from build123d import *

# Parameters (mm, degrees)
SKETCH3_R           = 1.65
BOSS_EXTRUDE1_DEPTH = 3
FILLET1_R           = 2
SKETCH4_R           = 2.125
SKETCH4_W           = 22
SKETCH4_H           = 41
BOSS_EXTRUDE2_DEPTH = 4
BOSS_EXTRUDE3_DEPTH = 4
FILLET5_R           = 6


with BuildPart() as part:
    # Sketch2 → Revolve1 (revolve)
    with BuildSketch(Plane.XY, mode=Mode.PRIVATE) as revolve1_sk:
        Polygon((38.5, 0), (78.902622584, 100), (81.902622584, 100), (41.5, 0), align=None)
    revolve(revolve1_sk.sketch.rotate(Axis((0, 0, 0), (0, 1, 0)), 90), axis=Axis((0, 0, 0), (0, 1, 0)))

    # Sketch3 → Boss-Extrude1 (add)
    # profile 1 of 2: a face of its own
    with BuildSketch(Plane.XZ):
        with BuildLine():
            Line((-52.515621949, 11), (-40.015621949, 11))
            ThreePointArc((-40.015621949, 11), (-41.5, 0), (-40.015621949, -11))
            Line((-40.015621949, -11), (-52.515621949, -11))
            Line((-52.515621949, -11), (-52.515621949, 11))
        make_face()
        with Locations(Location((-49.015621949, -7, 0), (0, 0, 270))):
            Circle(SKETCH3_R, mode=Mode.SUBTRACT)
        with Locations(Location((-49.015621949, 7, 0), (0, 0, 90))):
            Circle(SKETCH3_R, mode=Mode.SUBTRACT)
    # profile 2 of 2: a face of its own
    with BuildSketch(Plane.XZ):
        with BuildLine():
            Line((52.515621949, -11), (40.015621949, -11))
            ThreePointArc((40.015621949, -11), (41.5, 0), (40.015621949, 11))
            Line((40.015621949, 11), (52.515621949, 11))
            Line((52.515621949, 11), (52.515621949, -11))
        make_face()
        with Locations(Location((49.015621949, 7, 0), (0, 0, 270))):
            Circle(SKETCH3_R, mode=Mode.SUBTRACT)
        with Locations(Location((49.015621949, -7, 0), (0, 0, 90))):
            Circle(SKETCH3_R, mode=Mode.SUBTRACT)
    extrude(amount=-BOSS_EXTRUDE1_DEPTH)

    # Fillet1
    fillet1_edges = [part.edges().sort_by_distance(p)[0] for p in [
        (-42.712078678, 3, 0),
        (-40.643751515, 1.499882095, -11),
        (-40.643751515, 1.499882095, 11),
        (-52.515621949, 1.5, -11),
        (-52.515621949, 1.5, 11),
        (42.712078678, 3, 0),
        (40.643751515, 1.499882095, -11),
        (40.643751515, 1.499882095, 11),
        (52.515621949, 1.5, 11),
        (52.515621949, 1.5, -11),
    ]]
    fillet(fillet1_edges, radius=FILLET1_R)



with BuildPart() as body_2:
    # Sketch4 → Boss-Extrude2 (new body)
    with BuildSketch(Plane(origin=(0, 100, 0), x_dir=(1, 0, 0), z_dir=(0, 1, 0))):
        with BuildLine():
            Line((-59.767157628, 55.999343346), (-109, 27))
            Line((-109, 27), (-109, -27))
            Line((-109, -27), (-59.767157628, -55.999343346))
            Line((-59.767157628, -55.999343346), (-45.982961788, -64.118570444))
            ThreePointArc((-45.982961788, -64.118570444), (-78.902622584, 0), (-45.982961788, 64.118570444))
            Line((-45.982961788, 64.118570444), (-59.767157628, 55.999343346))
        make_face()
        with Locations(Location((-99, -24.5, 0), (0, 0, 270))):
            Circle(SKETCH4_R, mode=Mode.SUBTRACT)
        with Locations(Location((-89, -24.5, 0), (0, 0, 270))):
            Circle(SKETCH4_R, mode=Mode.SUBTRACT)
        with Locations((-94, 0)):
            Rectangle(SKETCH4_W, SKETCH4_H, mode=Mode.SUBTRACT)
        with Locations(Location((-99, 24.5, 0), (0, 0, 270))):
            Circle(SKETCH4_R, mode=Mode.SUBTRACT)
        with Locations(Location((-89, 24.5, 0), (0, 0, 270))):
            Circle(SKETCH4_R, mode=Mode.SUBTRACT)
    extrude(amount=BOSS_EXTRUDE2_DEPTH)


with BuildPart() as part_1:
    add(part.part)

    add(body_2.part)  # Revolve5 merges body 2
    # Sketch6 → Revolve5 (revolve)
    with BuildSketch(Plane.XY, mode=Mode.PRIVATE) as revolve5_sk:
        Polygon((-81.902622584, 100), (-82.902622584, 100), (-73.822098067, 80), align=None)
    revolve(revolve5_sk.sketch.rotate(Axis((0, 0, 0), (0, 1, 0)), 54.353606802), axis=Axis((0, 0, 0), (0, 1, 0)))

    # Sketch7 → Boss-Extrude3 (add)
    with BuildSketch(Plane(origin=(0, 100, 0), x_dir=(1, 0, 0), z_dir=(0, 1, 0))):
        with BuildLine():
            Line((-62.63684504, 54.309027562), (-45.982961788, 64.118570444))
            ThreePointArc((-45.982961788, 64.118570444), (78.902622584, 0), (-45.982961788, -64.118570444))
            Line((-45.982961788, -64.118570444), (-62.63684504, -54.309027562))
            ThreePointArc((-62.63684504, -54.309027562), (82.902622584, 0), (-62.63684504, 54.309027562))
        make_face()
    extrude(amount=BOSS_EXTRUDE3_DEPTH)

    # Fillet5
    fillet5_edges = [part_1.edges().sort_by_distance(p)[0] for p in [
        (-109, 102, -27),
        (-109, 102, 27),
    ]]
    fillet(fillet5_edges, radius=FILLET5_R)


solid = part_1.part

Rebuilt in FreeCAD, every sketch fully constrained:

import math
import FreeCAD as App
import Part
import Sketcher
Q = App.Units.Quantity


def edges_at(feature, points):
    """Names of the edges that pass closest to the given points."""
    edges = feature.Shape.Edges
    near = lambda p: min(range(len(edges)), key=lambda i: edges[i].distToShape(Part.Vertex(*p))[0])
    return sorted({f"Edge{near(p) + 1}" for p in points})


def add_polygon(sketch, points):
    """Adds a closed chain of lines whose ends are joined by coincident constraints."""
    first, n = sketch.GeometryCount, len(points)
    for a, b in zip(points, points[1:] + points[:1]):
        sketch.addGeometry(Part.LineSegment(App.Vector(*a, 0), App.Vector(*b, 0)), False)
    for i in range(n):
        sketch.addConstraint(Sketcher.Constraint("Coincident", first + i, 2, first + (i + 1) % n, 1))

doc = App.newDocument("Part")
body = doc.addObject("PartDesign::Body", "Body")

# Sketch on XY plane
sketch1 = body.newObject("Sketcher::SketchObject", "Sketch")
sketch1.AttachmentSupport = (doc.getObject("XY_Plane"), [""])
sketch1.MapMode = "FlatFace"
add_polygon(sketch1, [(78.9, 100), (38.5, 0), (41.5, 0), (81.9, 100)])  # lines 0-3
sketch1.addConstraint([
    Sketcher.Constraint("Horizontal", 1),
    Sketcher.Constraint("Horizontal", 3),
    Sketcher.Constraint("PointOnObject", 0, 2, -1),
    Sketcher.Constraint("Parallel", 0, 2),
    Sketcher.Constraint("DistanceX", 1, 1, 1, 2, 3.0),
    Sketcher.Constraint("Angle", 0, Q("-112 deg")),
    Sketcher.Constraint("DistanceY", -1, 1, 2, 2, 100.0),
    Sketcher.Constraint("DistanceX", -1, 1, 0, 2, 38.5),
])
revolution = body.newObject("PartDesign::Revolution", "Revolution")
revolution.Profile = sketch1
revolution.ReferenceAxis = (sketch1, ["V_Axis"])
revolution.Angle = 360

# Sketch on XZ plane
sketch2 = body.newObject("Sketcher::SketchObject", "Sketch001")
sketch2.AttachmentSupport = (doc.getObject("XZ_Plane"), [""])
sketch2.MapMode = "FlatFace"
sketch2.addGeometry([
    Part.LineSegment(App.Vector(-40, 11, 0), App.Vector(-52.5, 11, 0)),  # 0
    Part.LineSegment(App.Vector(-52.5, 11, 0), App.Vector(-52.5, -11, 0)),  # 1
    Part.LineSegment(App.Vector(-52.5, -11, 0), App.Vector(-40, -11, 0)),  # 2
    Part.ArcOfCircle(Part.Circle(App.Vector(0, 0, 0), App.Vector(0, 0, 1), 41.5), math.radians(165), math.radians(195)),  # 3
    Part.Circle(App.Vector(-49, -7, 0), App.Vector(0, 0, 1), 1.6),  # 4
    Part.Circle(App.Vector(-49, 7, 0), App.Vector(0, 0, 1), 1.6),  # 5
    Part.LineSegment(App.Vector(40, -11, 0), App.Vector(52.5, -11, 0)),  # 6
    Part.LineSegment(App.Vector(52.5, -11, 0), App.Vector(52.5, 11, 0)),  # 7
    Part.LineSegment(App.Vector(52.5, 11, 0), App.Vector(40, 11, 0)),  # 8
    Part.ArcOfCircle(Part.Circle(App.Vector(0, 0, 0), App.Vector(0, 0, 1), 41.5), math.radians(-15), math.radians(15)),  # 9
    Part.Circle(App.Vector(49, -7, 0), App.Vector(0, 0, 1), 1.6),  # 10
    Part.Circle(App.Vector(49, 7, 0), App.Vector(0, 0, 1), 1.6),  # 11
], False)
sketch2.addConstraint([
    Sketcher.Constraint("Coincident", 0, 2, 1, 1),
    Sketcher.Constraint("Coincident", 1, 2, 2, 1),
    Sketcher.Constraint("Coincident", 2, 2, 3, 2),
    Sketcher.Constraint("Coincident", 3, 1, 0, 1),
    Sketcher.Constraint("Coincident", 6, 2, 7, 1),
    Sketcher.Constraint("Coincident", 7, 2, 8, 1),
    Sketcher.Constraint("Coincident", 8, 2, 9, 2),
    Sketcher.Constraint("Coincident", 9, 1, 6, 1),
    Sketcher.Constraint("Horizontal", 0),
    Sketcher.Constraint("Vertical", 1),
    Sketcher.Constraint("Horizontal", 2),
    Sketcher.Constraint("Horizontal", 6),
    Sketcher.Constraint("Vertical", 7),
    Sketcher.Constraint("Horizontal", 8),
    Sketcher.Constraint("Coincident", 3, 3, -1, 1),
    Sketcher.Constraint("Coincident", 9, 3, -1, 1),
    Sketcher.Constraint("Equal", 4, 5),
    Sketcher.Constraint("Equal", 3, 9),
    Sketcher.Constraint("Equal", 5, 10),
    Sketcher.Constraint("Equal", 10, 11),
    Sketcher.Constraint("Symmetric", 5, 3, 10, 3, -1, 1),
    Sketcher.Constraint("Symmetric", 4, 3, 11, 3, -1, 1),
    Sketcher.Constraint("Symmetric", 0, 2, 6, 2, -1, 1),
    Sketcher.Constraint("Symmetric", 4, 3, 10, 3, -2),
    Sketcher.Constraint("Horizontal", 2, 2, 6, 2),
    Sketcher.Constraint("Horizontal", 3, 1, 7, 2),
    Sketcher.Constraint("Diameter", 4, 3.3),
    Sketcher.Constraint("Radius", 3, 41.5),
    Sketcher.Constraint("DistanceY", 1, 2, 1, 1, 22.0),
    Sketcher.Constraint("DistanceX", 0, 2, 0, 1, 12.5),
    Sketcher.Constraint("DistanceY", 4, 3, -1, 1, 7.0),
    Sketcher.Constraint("DistanceX", 4, 3, 2, 2, 9.0),
])
pad1 = body.newObject("PartDesign::Pad", "Pad")
pad1.Profile = sketch2
pad1.Length = 3
pad1.Reversed = True
doc.recompute()

fillet = body.newObject("PartDesign::Fillet", "Fillet")
fillet.Base = (pad1, edges_at(pad1, [
    (-42.712, 3, 0),
    (-40.644, 1.5, -11),
    (-40.644, 1.5, 11),
    (-52.516, 1.5, -11),
    (-52.516, 1.5, 11),
    (42.712, 3, 0),
    (40.644, 1.5, -11),
    (40.644, 1.5, 11),
    (52.516, 1.5, 11),
    (52.516, 1.5, -11),
]))
fillet.Radius = 2
body2 = doc.addObject("PartDesign::Body", "Body001")

# Sketch on XZ plane
sketch3 = body2.newObject("Sketcher::SketchObject", "Sketch002")
sketch3.AttachmentSupport = (doc.getObject("XZ_Plane001"), [""])
sketch3.MapMode = "FlatFace"
sketch3.AttachmentOffset = App.Placement(App.Vector(0, 0, -100), App.Rotation())
sketch3.addGeometry(Part.LineSegment(App.Vector(-59.8, -56, 0), App.Vector(-109, -27, 0)), False)  # 0
sketch3.addGeometry(Part.LineSegment(App.Vector(-109, -27, 0), App.Vector(-109, 27, 0)), False)  # 1
sketch3.addGeometry(Part.LineSegment(App.Vector(-109, 27, 0), App.Vector(-59.8, 56, 0)), False)  # 2
sketch3.addGeometry(Part.LineSegment(App.Vector(-59.8, 56, 0), App.Vector(-46, 64.1, 0)), False)  # 3
sketch3.addGeometry(Part.ArcOfCircle(Part.Circle(App.Vector(0, 0, 0), App.Vector(0, 0, 1), 78.9), math.radians(126), math.radians(234)), False)  # 4
sketch3.addGeometry(Part.LineSegment(App.Vector(-46, -64.1, 0), App.Vector(-59.8, -56, 0)), False)  # 5
sketch3.addGeometry(Part.Circle(App.Vector(-99, 24.5, 0), App.Vector(0, 0, 1), 2.1), False)  # 6
sketch3.addGeometry(Part.Circle(App.Vector(-89, 24.5, 0), App.Vector(0, 0, 1), 2.1), False)  # 7
sketch3.addGeometry(Part.Circle(App.Vector(-99, -24.5, 0), App.Vector(0, 0, 1), 2.1), False)  # 8
add_polygon(sketch3, [(-83, 20.5), (-105, 20.5), (-105, -20.5), (-83, -20.5)])  # lines 9-12
sketch3.addGeometry(Part.Circle(App.Vector(-89, -24.5, 0), App.Vector(0, 0, 1), 2.1), False)  # 13
sketch3.addConstraint([
    Sketcher.Constraint("Coincident", 0, 2, 1, 1),
    Sketcher.Constraint("Coincident", 1, 2, 2, 1),
    Sketcher.Constraint("Coincident", 2, 2, 3, 1),
    Sketcher.Constraint("Coincident", 3, 2, 4, 1),
    Sketcher.Constraint("Coincident", 4, 2, 5, 1),
    Sketcher.Constraint("Coincident", 5, 2, 0, 1),
    Sketcher.Constraint("Vertical", 1),
    Sketcher.Constraint("Horizontal", 9),
    Sketcher.Constraint("Vertical", 10),
    Sketcher.Constraint("Horizontal", 11),
    Sketcher.Constraint("Vertical", 12),
    Sketcher.Constraint("Coincident", 4, 3, -1, 1),
    Sketcher.Constraint("Equal", 6, 7),
    Sketcher.Constraint("Equal", 7, 8),
    Sketcher.Constraint("Equal", 8, 13),
    Sketcher.Constraint("Symmetric", 6, 3, 8, 3, -1),
    Sketcher.Constraint("Symmetric", 7, 3, 13, 3, -1),
    Sketcher.Constraint("Symmetric", 2, 2, 5, 2, -1),
    Sketcher.Constraint("Parallel", 2, 3),
    Sketcher.Constraint("Parallel", 0, 5),
    Sketcher.Constraint("Horizontal", 6, 3, 7, 3),
    Sketcher.Constraint("Vertical", 3, 2, 4, 2),
    Sketcher.Constraint("Diameter", 6, 4.25),
    Sketcher.Constraint("DistanceX", 9, 2, 9, 1, 22.0),
    Sketcher.Constraint("DistanceY", 1, 1, 1, 2, 54.0),
    Sketcher.Constraint("DistanceY", 10, 2, 10, 1, 41.0),
    Sketcher.Constraint("DistanceX", 6, 3, -1, 1, 99.0),
    Sketcher.Constraint("DistanceX", 7, 3, -1, 1, 89.0),
    Sketcher.Constraint("DistanceX", 0, 2, -1, 1, 109.0),
    Sketcher.Constraint("DistanceX", 9, 2, -1, 1, 105.0),
    Sketcher.Constraint("DistanceY", 8, 3, 6, 3, 49.0),
    Sketcher.Constraint("DistanceY", 9, 2, 6, 3, 4.0),
    Sketcher.Constraint("Radius", 4, 78.902623),
    Sketcher.Constraint("Distance", 0, 57.138732),
    Sketcher.Constraint("DistanceX", 3, 2, -1, 1, 45.982962),
])
pad2 = body2.newObject("PartDesign::Pad", "Pad001")
pad2.Profile = sketch3
pad2.Length = 4
pad2.Reversed = True
doc.recompute()

boolean = body.newObject("PartDesign::Boolean", "Boolean")
boolean.Type = "Fuse"
boolean.addObjects([body2])

# Sketch on XY plane
sketch4 = body.newObject("Sketcher::SketchObject", "Sketch003")
sketch4.AttachmentSupport = (doc.getObject("XY_Plane"), [""])
sketch4.MapMode = "FlatFace"
add_polygon(sketch4, [(-81.9, 100), (-82.9, 100), (-73.8, 80)])  # lines 0-2
sketch4.addConstraint([
    Sketcher.Constraint("Horizontal", 0),
    Sketcher.Constraint("DistanceX", 0, 2, 0, 1, 1.0),
    Sketcher.Constraint("Angle", 2, Q("112 deg")),
    Sketcher.Constraint("DistanceY", -1, 1, 0, 2, 100.0),
    Sketcher.Constraint("DistanceY", -1, 1, 1, 2, 80.0),
    Sketcher.Constraint("DistanceX", 1, 2, -1, 1, 73.822098),
])
revolution2 = body.newObject("PartDesign::Revolution", "Revolution001")
revolution2.Profile = sketch4
revolution2.ReferenceAxis = (sketch4, ["V_Axis"])
revolution2.Angle = 360

# Sketch on XZ plane
sketch5 = body.newObject("Sketcher::SketchObject", "Sketch004")
sketch5.AttachmentSupport = (doc.getObject("XZ_Plane"), [""])
sketch5.MapMode = "FlatFace"
sketch5.AttachmentOffset = App.Placement(App.Vector(0, 0, -100), App.Rotation())
sketch5.addGeometry([
    Part.LineSegment(App.Vector(-63, -54, 0), App.Vector(-46, -64, 0)),
    Part.ArcOfCircle(Part.Circle(App.Vector(0, 0, 0), App.Vector(0, 0, 1), 79), math.radians(-126), math.radians(126)),
    Part.LineSegment(App.Vector(-46, 64, 0), App.Vector(-63, 54, 0)),
    Part.ArcOfCircle(Part.Circle(App.Vector(0, 0, 0), App.Vector(0, 0, 1), 83), math.radians(-139), math.radians(139)),
], False)
sketch5.addConstraint([
    Sketcher.Constraint("Coincident", 0, 2, 1, 1),
    Sketcher.Constraint("Coincident", 1, 2, 2, 1),
    Sketcher.Constraint("Coincident", 2, 2, 3, 2),
    Sketcher.Constraint("Coincident", 3, 1, 0, 1),
    Sketcher.Constraint("Coincident", 1, 3, -1, 1),
    Sketcher.Constraint("Coincident", 3, 3, -1, 1),
    Sketcher.Constraint("Vertical", 0, 2, 1, 2),
    Sketcher.Constraint("Vertical", 2, 2, 3, 1),
    Sketcher.Constraint("Radius", 1, 78.902623),
    Sketcher.Constraint("Radius", 3, 82.902623),
    Sketcher.Constraint("DistanceY", 0, 2, 2, 2, 118.427598),
    Sketcher.Constraint("Distance", 0, 19.328191),
])
pad3 = body.newObject("PartDesign::Pad", "Pad002")
pad3.Profile = sketch5
pad3.Length = 4
pad3.Reversed = True
doc.recompute()

fillet2 = body.newObject("PartDesign::Fillet", "Fillet001")
fillet2.Base = (pad3, edges_at(pad3, [(-109, 102, -27), (-109, 102, 27)]))
fillet2.Radius = 6

doc.recompute()
